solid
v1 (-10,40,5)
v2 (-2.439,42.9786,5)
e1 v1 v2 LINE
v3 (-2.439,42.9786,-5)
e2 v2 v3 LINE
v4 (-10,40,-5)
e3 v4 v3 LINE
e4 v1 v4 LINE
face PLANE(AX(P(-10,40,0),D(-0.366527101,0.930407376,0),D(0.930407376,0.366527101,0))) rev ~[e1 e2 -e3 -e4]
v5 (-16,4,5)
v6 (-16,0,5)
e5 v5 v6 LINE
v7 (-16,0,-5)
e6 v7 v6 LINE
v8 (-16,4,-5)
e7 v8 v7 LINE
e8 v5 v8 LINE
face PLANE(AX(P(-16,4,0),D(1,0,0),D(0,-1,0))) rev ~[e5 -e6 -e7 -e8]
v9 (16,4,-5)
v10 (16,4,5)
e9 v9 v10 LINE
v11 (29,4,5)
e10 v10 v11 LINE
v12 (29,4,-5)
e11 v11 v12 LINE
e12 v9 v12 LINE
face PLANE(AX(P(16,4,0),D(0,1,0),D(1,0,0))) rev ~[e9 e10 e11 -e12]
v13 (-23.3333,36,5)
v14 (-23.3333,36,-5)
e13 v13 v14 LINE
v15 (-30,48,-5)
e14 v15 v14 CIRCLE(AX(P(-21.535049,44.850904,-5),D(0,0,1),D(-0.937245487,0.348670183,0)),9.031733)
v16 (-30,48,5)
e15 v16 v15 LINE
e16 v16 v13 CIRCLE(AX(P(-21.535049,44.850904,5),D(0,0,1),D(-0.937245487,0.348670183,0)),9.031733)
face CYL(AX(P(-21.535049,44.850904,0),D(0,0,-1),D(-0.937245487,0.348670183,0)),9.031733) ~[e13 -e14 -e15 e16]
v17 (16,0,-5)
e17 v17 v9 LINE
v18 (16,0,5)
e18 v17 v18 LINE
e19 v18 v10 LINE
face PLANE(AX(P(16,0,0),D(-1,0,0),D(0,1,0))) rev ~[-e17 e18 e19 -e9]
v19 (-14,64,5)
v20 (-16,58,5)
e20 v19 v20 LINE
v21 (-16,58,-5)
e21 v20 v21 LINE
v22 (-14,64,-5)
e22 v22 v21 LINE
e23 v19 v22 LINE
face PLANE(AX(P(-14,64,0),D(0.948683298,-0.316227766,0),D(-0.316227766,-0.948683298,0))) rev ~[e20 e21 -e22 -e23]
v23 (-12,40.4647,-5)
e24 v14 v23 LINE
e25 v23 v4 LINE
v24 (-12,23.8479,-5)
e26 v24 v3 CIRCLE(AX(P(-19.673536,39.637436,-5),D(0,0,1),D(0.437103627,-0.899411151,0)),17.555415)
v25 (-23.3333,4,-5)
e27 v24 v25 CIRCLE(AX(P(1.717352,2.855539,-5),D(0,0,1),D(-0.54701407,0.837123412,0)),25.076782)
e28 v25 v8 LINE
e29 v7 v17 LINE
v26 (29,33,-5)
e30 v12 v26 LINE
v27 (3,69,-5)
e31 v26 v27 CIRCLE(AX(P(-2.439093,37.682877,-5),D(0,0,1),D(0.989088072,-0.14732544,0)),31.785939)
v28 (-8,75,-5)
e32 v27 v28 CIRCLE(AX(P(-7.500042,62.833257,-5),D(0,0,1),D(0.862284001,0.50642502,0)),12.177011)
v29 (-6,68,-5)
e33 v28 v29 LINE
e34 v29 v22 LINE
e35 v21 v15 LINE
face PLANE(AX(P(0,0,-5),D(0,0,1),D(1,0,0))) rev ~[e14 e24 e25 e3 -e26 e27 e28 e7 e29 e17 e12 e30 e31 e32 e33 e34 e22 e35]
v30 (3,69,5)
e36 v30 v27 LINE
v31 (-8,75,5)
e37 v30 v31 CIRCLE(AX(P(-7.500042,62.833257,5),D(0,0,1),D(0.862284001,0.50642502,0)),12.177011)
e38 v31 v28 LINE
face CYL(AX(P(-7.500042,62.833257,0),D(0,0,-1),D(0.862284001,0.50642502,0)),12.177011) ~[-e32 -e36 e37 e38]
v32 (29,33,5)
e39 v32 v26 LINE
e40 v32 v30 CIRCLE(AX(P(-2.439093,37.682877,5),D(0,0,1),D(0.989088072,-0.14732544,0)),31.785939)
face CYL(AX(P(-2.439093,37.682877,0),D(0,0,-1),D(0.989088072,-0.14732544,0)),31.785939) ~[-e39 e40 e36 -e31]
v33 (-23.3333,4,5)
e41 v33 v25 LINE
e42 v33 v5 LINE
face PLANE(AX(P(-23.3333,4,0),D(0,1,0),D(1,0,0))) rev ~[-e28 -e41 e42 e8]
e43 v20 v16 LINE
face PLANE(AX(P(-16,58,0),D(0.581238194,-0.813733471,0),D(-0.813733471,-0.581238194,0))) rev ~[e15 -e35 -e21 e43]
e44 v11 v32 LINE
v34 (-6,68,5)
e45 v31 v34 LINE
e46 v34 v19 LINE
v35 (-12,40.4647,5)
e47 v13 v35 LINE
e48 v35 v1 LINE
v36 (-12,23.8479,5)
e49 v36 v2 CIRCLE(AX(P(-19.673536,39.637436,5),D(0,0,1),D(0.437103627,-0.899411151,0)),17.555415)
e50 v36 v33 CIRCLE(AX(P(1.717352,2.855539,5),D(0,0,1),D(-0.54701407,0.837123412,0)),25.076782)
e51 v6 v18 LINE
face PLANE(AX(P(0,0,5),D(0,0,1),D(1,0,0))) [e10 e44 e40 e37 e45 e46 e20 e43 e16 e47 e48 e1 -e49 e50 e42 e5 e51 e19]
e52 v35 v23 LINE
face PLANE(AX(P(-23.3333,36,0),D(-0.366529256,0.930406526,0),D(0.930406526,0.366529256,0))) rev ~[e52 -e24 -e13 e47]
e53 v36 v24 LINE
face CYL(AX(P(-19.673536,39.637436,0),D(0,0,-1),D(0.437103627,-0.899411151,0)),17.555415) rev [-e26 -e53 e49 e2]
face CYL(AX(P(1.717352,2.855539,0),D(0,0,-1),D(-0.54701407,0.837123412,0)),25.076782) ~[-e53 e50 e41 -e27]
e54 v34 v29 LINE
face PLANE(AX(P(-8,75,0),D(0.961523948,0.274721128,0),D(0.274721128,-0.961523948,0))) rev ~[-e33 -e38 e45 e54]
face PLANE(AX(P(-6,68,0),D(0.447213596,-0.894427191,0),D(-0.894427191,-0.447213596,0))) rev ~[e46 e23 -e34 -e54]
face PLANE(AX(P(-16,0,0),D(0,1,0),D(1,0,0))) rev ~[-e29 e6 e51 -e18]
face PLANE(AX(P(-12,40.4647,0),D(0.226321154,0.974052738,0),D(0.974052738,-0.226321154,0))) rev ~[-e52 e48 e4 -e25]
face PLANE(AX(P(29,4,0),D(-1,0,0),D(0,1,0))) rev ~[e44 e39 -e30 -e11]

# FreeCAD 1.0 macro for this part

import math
import FreeCAD as App
import Part
import Sketcher
from FreeCAD import Vector
Q = App.Units.Quantity

doc = App.newDocument("Part")
body = doc.addObject("PartDesign::Body", "Body")

# Sketch on XY plane
sketch1 = doc.addObject("Sketcher::SketchObject", "Sketch")
body.addObject(sketch1)
sketch1.AttachmentSupport = (doc.XY_Plane, [""])
sketch1.MapMode = "FlatFace"
sketch1.addGeometry([
    Part.LineSegment(Vector(-16, 4, 0), Vector(-16, 0, 0)),  # 0
    Part.LineSegment(Vector(-16, 0, 0), Vector(16, 0, 0)),  # 1
    Part.LineSegment(Vector(16, 0, 0), Vector(16, 4, 0)),  # 2
    Part.LineSegment(Vector(16, 4, 0), Vector(29, 4, 0)),  # 3
    Part.LineSegment(Vector(29, 4, 0), Vector(29, 33, 0)),  # 4
    Part.ArcOfCircle(Part.Circle(Vector(-2.4, 37.7, 0), Vector(0, 0, 1), 31.8), math.radians(-8), math.radians(80)),  # 5
    Part.ArcOfCircle(Part.Circle(Vector(-7.5, 62.8, 0), Vector(0, 0, 1), 12.2), math.radians(30), math.radians(92)),  # 6
    Part.LineSegment(Vector(-8, 75, 0), Vector(-6, 68, 0)),  # 7
    Part.LineSegment(Vector(-6, 68, 0), Vector(-14, 64, 0)),  # 8
    Part.LineSegment(Vector(-14, 64, 0), Vector(-16, 58, 0)),  # 9
    Part.LineSegment(Vector(-16, 58, 0), Vector(-30, 48, 0)),  # 10
    Part.ArcOfCircle(Part.Circle(Vector(-21.5, 44.9, 0), Vector(0, 0, 1), 9), math.radians(160), math.radians(259)),  # 11
    Part.LineSegment(Vector(-23.3, 36, 0), Vector(-12, 40.5, 0)),  # 12
    Part.LineSegment(Vector(-12, 40.5, 0), Vector(-10, 40, 0)),  # 13
    Part.LineSegment(Vector(-10, 40, 0), Vector(-2.4, 43, 0)),  # 14
    Part.ArcOfCircle(Part.Circle(Vector(-19.7, 39.6, 0), Vector(0, 0, 1), 17.6), math.radians(-64), math.radians(11)),  # 15
    Part.ArcOfCircle(Part.Circle(Vector(1.7, 2.9, 0), Vector(0, 0, 1), 25.1), math.radians(123), math.radians(177)),  # 16
    Part.LineSegment(Vector(-23.3, 4, 0), Vector(-16, 4, 0)),  # 17
], False)
sketch1.addConstraint([
    Sketcher.Constraint("Coincident", 0, 2, 1, 1),
    Sketcher.Constraint("Coincident", 1, 2, 2, 1),
    Sketcher.Constraint("Coincident", 2, 2, 3, 1),
    Sketcher.Constraint("Coincident", 3, 2, 4, 1),
    Sketcher.Constraint("Coincident", 4, 2, 5, 1),
    Sketcher.Constraint("Coincident", 5, 2, 6, 1),
    Sketcher.Constraint("Coincident", 6, 2, 7, 1),
    Sketcher.Constraint("Coincident", 7, 2, 8, 1),
    Sketcher.Constraint("Coincident", 8, 2, 9, 1),
    Sketcher.Constraint("Coincident", 9, 2, 10, 1),
    Sketcher.Constraint("Coincident", 10, 2, 11, 1),
    Sketcher.Constraint("Coincident", 11, 2, 12, 1),
    Sketcher.Constraint("Coincident", 12, 2, 13, 1),
    Sketcher.Constraint("Coincident", 13, 2, 14, 1),
    Sketcher.Constraint("Coincident", 14, 2, 15, 2),
    Sketcher.Constraint("Coincident", 15, 1, 16, 1),
    Sketcher.Constraint("Coincident", 16, 2, 17, 1),
    Sketcher.Constraint("Coincident", 17, 2, 0, 1),
    Sketcher.Constraint("Vertical", 0),
    Sketcher.Constraint("Horizontal", 1),
    Sketcher.Constraint("Vertical", 2),
    Sketcher.Constraint("Horizontal", 3),
    Sketcher.Constraint("Vertical", 4),
    Sketcher.Constraint("Horizontal", 17),
    Sketcher.Constraint("Symmetric", 0, 2, 1, 2, -1, 1),
    Sketcher.Constraint("Parallel", 12, 14),
    Sketcher.Constraint("Horizontal", 3, 2, 16, 2),
    Sketcher.Constraint("Vertical", 0, 2, 9, 2),
    Sketcher.Constraint("Vertical", 5, 3, 14, 2),
    Sketcher.Constraint("Vertical", 12, 2, 15, 1),
    Sketcher.Constraint("Vertical", 11, 2, 16, 2),
    Sketcher.Constraint("DistanceX", 1, 1, 1, 2, 32.0),
    Sketcher.Constraint("DistanceX", 3, 1, 3, 2, 13.0),
    Sketcher.Constraint("DistanceY", 0, 2, 0, 1, 4.0),
    Sketcher.Constraint("DistanceY", 4, 1, 4, 2, 29.0),
    Sketcher.Constraint("DistanceX", -1, 1, 5, 2, 3.0),
    Sketcher.Constraint("DistanceY", -1, 1, 5, 2, 69.0),
    Sketcher.Constraint("DistanceX", 6, 2, -1, 1, 8.0),
    Sketcher.Constraint("DistanceY", -1, 1, 6, 2, 75.0),
    Sketcher.Constraint("DistanceX", 7, 2, -1, 1, 6.0),
    Sketcher.Constraint("DistanceY", -1, 1, 7, 2, 68.0),
    Sketcher.Constraint("DistanceX", 8, 2, -1, 1, 14.0),
    Sketcher.Constraint("DistanceY", -1, 1, 8, 2, 64.0),
    Sketcher.Constraint("DistanceY", -1, 1, 9, 2, 58.0),
    Sketcher.Constraint("DistanceX", 10, 2, -1, 1, 30.0),
    Sketcher.Constraint("DistanceY", -1, 1, 10, 2, 48.0),
    Sketcher.Constraint("DistanceY", -1, 1, 11, 2, 36.0),
    Sketcher.Constraint("DistanceX", 12, 2, -1, 1, 12.0),
    Sketcher.Constraint("DistanceX", 13, 2, -1, 1, 10.0),
    Sketcher.Constraint("DistanceY", -1, 1, 13, 2, 40.0),
    Sketcher.Constraint("Radius", 6, 12.177),
    Sketcher.Constraint("Radius", 16, 25.077),
    Sketcher.Constraint("Angle", 13, Q("-13.0806 deg")),
    Sketcher.Constraint("Radius", 5, 31.7859),
    Sketcher.Constraint("Radius", 11, 9.0317),
    Sketcher.Constraint("Radius", 15, 17.5554),
    Sketcher.Constraint("Distance", 12, 12.181),
    Sketcher.Constraint("DistanceY", -1, 1, 15, 1, 23.848),
])
pad1 = doc.addObject("PartDesign::Pad", "Pad")
body.addObject(pad1)
pad1.Profile = sketch1
pad1.Length = 10
pad1.Midplane = True

doc.recompute()
